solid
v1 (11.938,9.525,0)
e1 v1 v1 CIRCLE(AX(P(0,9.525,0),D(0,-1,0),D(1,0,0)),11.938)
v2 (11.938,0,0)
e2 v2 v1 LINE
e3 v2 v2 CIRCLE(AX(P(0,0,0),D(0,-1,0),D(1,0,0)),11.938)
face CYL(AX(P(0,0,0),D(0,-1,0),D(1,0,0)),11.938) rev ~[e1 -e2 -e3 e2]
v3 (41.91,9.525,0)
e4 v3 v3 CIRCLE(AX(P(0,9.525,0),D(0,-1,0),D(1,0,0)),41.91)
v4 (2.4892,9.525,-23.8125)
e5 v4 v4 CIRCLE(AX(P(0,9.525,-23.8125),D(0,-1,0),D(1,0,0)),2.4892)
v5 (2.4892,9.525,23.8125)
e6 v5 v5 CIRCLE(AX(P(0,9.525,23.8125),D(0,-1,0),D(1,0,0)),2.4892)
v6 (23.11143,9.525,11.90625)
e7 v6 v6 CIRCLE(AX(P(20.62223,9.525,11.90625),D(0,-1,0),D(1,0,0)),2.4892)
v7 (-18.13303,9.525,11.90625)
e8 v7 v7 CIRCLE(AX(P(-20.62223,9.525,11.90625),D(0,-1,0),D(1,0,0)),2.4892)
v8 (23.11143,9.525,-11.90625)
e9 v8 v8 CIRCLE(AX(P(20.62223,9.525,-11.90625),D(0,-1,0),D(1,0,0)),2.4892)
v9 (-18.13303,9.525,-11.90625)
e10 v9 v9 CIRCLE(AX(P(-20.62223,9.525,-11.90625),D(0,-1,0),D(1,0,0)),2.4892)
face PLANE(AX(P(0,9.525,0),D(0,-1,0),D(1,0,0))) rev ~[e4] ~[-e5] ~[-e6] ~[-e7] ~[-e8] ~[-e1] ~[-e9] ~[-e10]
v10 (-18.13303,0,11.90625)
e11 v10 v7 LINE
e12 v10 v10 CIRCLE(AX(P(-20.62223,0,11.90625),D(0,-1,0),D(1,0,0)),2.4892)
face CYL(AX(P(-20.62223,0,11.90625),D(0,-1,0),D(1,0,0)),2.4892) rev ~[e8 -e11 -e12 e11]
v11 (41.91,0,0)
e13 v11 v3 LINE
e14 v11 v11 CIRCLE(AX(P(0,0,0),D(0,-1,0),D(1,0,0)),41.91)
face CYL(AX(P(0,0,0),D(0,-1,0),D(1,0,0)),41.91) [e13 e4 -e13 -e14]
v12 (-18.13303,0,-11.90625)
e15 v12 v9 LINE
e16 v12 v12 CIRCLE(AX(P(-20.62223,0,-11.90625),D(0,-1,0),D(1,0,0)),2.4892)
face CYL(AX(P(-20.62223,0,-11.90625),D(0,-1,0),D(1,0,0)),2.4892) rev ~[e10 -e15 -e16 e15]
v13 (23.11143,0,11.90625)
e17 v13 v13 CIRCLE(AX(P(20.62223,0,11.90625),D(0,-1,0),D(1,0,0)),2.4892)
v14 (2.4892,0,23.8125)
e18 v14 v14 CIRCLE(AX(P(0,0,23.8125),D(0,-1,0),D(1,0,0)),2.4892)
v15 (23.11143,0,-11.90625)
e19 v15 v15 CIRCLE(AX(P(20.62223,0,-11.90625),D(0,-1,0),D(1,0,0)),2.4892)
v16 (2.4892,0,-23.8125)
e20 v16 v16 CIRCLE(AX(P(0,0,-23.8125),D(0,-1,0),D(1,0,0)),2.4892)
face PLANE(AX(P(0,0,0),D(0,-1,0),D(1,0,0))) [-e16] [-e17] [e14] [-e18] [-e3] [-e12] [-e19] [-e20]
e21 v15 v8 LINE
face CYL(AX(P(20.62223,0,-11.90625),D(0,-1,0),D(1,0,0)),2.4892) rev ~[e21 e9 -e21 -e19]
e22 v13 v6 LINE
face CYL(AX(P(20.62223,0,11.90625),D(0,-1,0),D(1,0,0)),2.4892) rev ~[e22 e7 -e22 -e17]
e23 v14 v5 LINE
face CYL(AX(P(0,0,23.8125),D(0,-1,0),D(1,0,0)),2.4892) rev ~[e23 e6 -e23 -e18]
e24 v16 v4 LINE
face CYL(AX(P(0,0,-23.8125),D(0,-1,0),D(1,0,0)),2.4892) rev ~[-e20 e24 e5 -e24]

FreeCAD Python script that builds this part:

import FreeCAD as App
import Part
import Sketcher
Q = App.Units.Quantity

doc = App.newDocument("Part")
body = doc.addObject("PartDesign::Body", "Body")

# Sketch on XZ plane
sketch1 = body.newObject("Sketcher::SketchObject", "Sketch")
sketch1.AttachmentSupport = (doc.getObject("XZ_Plane"), [""])
sketch1.MapMode = "FlatFace"
sketch1.addGeometry(Part.Circle(App.Vector(0, 0, 0), App.Vector(0, 0, 1), 41.9), False)
sketch1.addGeometry(Part.Circle(App.Vector(-20.6, -11.9, 0), App.Vector(0, 0, 1), 2.5), False)
sketch1.addGeometry(Part.Circle(App.Vector(0, -23.8, 0), App.Vector(0, 0, 1), 2.5), False)
sketch1.addGeometry(Part.Circle(App.Vector(20.6, -11.9, 0), App.Vector(0, 0, 1), 2.5), False)
sketch1.addGeometry(Part.Circle(App.Vector(-20.6, 11.9, 0), App.Vector(0, 0, 1), 2.5), False)
sketch1.addGeometry(Part.Circle(App.Vector(0, 0, 0), App.Vector(0, 0, 1), 11.9), False)
sketch1.addGeometry(Part.Circle(App.Vector(20.6, 11.9, 0), App.Vector(0, 0, 1), 2.5), False)
sketch1.addGeometry(Part.Circle(App.Vector(0, 23.8, 0), App.Vector(0, 0, 1), 2.5), False)
sketch1.addConstraint(Sketcher.Constraint("Coincident", 0, 3, -1, 1))
sketch1.addConstraint(Sketcher.Constraint("Coincident", 5, 3, -1, 1))
sketch1.addConstraint(Sketcher.Constraint("Equal", 1, 2))
sketch1.addConstraint(Sketcher.Constraint("Equal", 2, 3))
sketch1.addConstraint(Sketcher.Constraint("Equal", 3, 4))
sketch1.addConstraint(Sketcher.Constraint("Equal", 4, 6))
sketch1.addConstraint(Sketcher.Constraint("Equal", 6, 7))
sketch1.addConstraint(Sketcher.Constraint("Symmetric", 3, 3, 4, 3, -1, 1))
sketch1.addConstraint(Sketcher.Constraint("Symmetric", 1, 3, 6, 3, -1, 1))
sketch1.addConstraint(Sketcher.Constraint("Symmetric", 2, 3, 7, 3, -1, 1))
sketch1.addConstraint(Sketcher.Constraint("Symmetric", 1, 3, 3, 3, -2))
sketch1.addConstraint(Sketcher.Constraint("PointOnObject", 2, 3, -2))
sketch1.addConstraint(Sketcher.Constraint("Diameter", 0, Q("3.3 in")))
sketch1.addConstraint(Sketcher.Constraint("Diameter", 5, Q("0.94 in")))
sketch1.addConstraint(Sketcher.Constraint("Diameter", 1, Q("0.196 in")))
sketch1.addConstraint(Sketcher.Constraint("DistanceY", 1, 3, -1, 1, Q("0.46875 in")))
sketch1.addConstraint(Sketcher.Constraint("DistanceY", 2, 3, -1, 1, Q("0.9375 in")))
sketch1.addConstraint(Sketcher.Constraint("DistanceX", 1, 3, -1, 1, 20.62223))
pad1 = body.newObject("PartDesign::Pad", "Pad")
pad1.Profile = sketch1
pad1.Length = Q("0.375 in")
pad1.Reversed = True

doc.recompute()
